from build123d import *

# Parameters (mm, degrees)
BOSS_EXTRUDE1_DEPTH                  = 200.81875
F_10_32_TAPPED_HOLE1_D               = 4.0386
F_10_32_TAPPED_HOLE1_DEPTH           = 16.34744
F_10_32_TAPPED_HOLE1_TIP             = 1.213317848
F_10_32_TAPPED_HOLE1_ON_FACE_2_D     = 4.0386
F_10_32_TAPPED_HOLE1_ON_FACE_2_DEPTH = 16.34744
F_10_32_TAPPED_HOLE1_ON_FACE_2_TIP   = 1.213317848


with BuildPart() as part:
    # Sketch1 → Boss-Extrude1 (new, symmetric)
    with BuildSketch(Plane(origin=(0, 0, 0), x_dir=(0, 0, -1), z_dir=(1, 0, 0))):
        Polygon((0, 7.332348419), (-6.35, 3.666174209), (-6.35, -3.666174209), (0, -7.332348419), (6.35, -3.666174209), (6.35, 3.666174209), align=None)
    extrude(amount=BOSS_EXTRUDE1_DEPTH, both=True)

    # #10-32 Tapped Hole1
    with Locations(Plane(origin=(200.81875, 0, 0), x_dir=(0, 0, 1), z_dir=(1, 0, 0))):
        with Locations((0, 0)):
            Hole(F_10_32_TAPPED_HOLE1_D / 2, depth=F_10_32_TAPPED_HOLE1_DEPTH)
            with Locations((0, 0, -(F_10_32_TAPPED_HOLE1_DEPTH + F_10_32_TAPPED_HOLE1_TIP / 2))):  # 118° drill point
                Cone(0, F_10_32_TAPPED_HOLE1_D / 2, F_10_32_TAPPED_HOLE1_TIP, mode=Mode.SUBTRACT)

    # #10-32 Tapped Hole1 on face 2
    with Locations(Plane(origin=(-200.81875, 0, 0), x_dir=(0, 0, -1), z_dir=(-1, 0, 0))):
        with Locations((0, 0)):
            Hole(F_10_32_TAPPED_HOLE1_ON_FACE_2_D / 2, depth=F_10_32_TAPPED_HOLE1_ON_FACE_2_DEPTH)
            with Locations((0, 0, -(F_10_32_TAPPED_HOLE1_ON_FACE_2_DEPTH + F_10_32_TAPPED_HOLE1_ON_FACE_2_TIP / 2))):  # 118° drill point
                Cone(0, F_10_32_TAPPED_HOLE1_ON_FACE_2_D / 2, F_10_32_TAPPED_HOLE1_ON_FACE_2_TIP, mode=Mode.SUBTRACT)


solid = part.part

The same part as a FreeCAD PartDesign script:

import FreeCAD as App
import Part
import Sketcher

V = App.Vector
Q = App.Units.Quantity

doc = App.newDocument("Part")
body = doc.addObject("PartDesign::Body", "Body")

sketch1 = doc.addObject("Sketcher::SketchObject", "Sketch")
body.addObject(sketch1)
sketch1.AttachmentSupport = (doc.YZ_Plane, [""])
sketch1.MapMode = "FlatFace"
sketch1.addGeometry([
    Part.LineSegment(V(7, 0, 0), V(4, 6, 0)),
    Part.LineSegment(V(4, 6, 0), V(-4, 6, 0)),
    Part.LineSegment(V(-4, 6, 0), V(-7, 0, 0)),
    Part.LineSegment(V(-7, 0, 0), V(-4, -6, 0)),
    Part.LineSegment(V(-4, -6, 0), V(4, -6, 0)),
    Part.LineSegment(V(4, -6, 0), V(7, 0, 0)),
], False)
sketch1.addConstraint([
    Sketcher.Constraint("Coincident", 0, 2, 1, 1),
    Sketcher.Constraint("Coincident", 1, 2, 2, 1),
    Sketcher.Constraint("Coincident", 2, 2, 3, 1),
    Sketcher.Constraint("Coincident", 3, 2, 4, 1),
    Sketcher.Constraint("Coincident", 4, 2, 5, 1),
    Sketcher.Constraint("Coincident", 5, 2, 0, 1),
    Sketcher.Constraint("Horizontal", 1),
    Sketcher.Constraint("Horizontal", 4),
    Sketcher.Constraint("Symmetric", 0, 2, 3, 2, -1, 1),
    Sketcher.Constraint("Symmetric", 2, 2, 5, 2, -1, 1),
    Sketcher.Constraint("PointOnObject", 2, 2, -1),
    Sketcher.Constraint("Parallel", 2, 5),
    Sketcher.Constraint("Vertical", 1, 2, 3, 2),
    Sketcher.Constraint("Angle", 0, Q("120 deg")),
    Sketcher.Constraint("DistanceY", 3, 2, 1, 2, Q("0.5 in")),
    Sketcher.Constraint("DistanceX", 1, 2, 1, 1, 7.332348),
])
pad1 = doc.addObject("PartDesign::Pad", "Pad")
body.addObject(pad1)
pad1.Profile = sketch1
pad1.Length = Q("15.8125 in")
pad1.Midplane = True

sketch2 = doc.addObject("Sketcher::SketchObject", "Sketch001")
body.addObject(sketch2)
sketch2.AttachmentSupport = (doc.YZ_Plane, [""])
sketch2.MapMode = "FlatFace"
sketch2.AttachmentOffset = App.Placement(V(0, 0, 7.90625 * 25.4), App.Rotation())
sketch2.addGeometry(Part.Circle(V(0, 0, 0), V(0, 0, 1), 2), False)
sketch2.addConstraint([
    Sketcher.Constraint("Coincident", 0, 3, -1, 1),
    Sketcher.Constraint("Diameter", 0, Q("0.159 in")),
])
doc.recompute()
hole = doc.addObject("PartDesign::Hole", "Hole")
body.addObject(hole)
hole.Profile = sketch2
hole.ThreadType = "None"
hole.Diameter = Q("0.159 in")
hole.DepthType = "Dimension"
hole.Depth = Q("0.6436 in")
hole.DrillPoint = "Angled"
hole.DrillPointAngle = 118

sketch3 = doc.addObject("Sketcher::SketchObject", "Sketch002")
body.addObject(sketch3)
sketch3.AttachmentSupport = (doc.YZ_Plane, [""])
sketch3.MapMode = "FlatFace"
sketch3.AttachmentOffset = App.Placement(V(0, 0, -7.90625 * 25.4), App.Rotation())
sketch3.addGeometry(Part.Circle(V(0, 0, 0), V(0, 0, 1), 2), False)
sketch3.addConstraint([
    Sketcher.Constraint("Coincident", 0, 3, -1, 1),
    Sketcher.Constraint("Diameter", 0, Q("0.159 in")),
])
doc.recompute()
hole2 = doc.addObject("PartDesign::Hole", "Hole001")
body.addObject(hole2)
hole2.Profile = sketch3
hole2.ThreadType = "None"
hole2.Diameter = Q("0.159 in")
hole2.DepthType = "Dimension"
hole2.Depth = Q("0.6436 in")
hole2.DrillPoint = "Angled"
hole2.DrillPointAngle = 118
hole2.Reversed = True

doc.recompute()
